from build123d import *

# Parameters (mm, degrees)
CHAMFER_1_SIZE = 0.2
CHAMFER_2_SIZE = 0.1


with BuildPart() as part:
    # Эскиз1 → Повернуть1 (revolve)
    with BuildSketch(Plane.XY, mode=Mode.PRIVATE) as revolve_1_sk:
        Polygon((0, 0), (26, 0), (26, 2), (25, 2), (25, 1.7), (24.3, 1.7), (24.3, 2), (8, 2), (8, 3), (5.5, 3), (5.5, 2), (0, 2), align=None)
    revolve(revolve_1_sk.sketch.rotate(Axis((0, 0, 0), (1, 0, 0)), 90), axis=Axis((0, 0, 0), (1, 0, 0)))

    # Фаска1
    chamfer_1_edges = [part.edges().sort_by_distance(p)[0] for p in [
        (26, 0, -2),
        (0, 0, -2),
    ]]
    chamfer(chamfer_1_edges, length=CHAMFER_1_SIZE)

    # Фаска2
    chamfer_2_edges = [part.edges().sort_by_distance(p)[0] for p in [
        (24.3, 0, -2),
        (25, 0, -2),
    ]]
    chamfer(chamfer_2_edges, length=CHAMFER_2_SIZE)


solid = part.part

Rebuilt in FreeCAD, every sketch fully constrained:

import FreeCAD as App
import Part
import Sketcher

V = App.Vector


def edges_at(feature, points):
    """Names of the edges that pass closest to the given points."""
    edges = feature.Shape.Edges
    near = lambda p: min(range(len(edges)), key=lambda i: edges[i].distToShape(Part.Vertex(*p))[0])
    return sorted({f"Edge{near(p) + 1}" for p in points})


def add_polygon(sketch, points):
    """Adds a closed chain of lines whose ends are joined by coincident constraints."""
    first, n = sketch.GeometryCount, len(points)
    for a, b in zip(points, points[1:] + points[:1]):
        sketch.addGeometry(Part.LineSegment(App.Vector(*a, 0), App.Vector(*b, 0)), False)
    for i in range(n):
        sketch.addConstraint(Sketcher.Constraint("Coincident", first + i, 2, first + (i + 1) % n, 1))

doc = App.newDocument("Part")
body = doc.addObject("PartDesign::Body", "Body")

sketch1 = body.newObject("Sketcher::SketchObject", "Sketch")
sketch1.AttachmentSupport = (doc.getObject("XY_Plane"), [""])
sketch1.MapMode = "FlatFace"
add_polygon(sketch1, [(0, 0), (26, 0), (26, 2), (25, 2), (25, 1.7), (24.3, 1.7), (24.3, 2), (8, 2), (8, 3), (5.5, 3), (5.5, 2), (0, 2)])
sketch1.addConstraint(Sketcher.Constraint("Horizontal", 0))
sketch1.addConstraint(Sketcher.Constraint("Vertical", 1))
sketch1.addConstraint(Sketcher.Constraint("Horizontal", 2))
sketch1.addConstraint(Sketcher.Constraint("Vertical", 3))
sketch1.addConstraint(Sketcher.Constraint("Horizontal", 4))
sketch1.addConstraint(Sketcher.Constraint("Vertical", 5))
sketch1.addConstraint(Sketcher.Constraint("Horizontal", 6))
sketch1.addConstraint(Sketcher.Constraint("Vertical", 7))
sketch1.addConstraint(Sketcher.Constraint("Horizontal", 8))
sketch1.addConstraint(Sketcher.Constraint("Vertical", 9))
sketch1.addConstraint(Sketcher.Constraint("Horizontal", 10))
sketch1.addConstraint(Sketcher.Constraint("Vertical", 11))
sketch1.addConstraint(Sketcher.Constraint("Coincident", 11, 2, -1, 1))
sketch1.addConstraint(Sketcher.Constraint("Horizontal", 2, 2, 5, 2))
sketch1.addConstraint(Sketcher.Constraint("Horizontal", 6, 2, 9, 2))
sketch1.addConstraint(Sketcher.Constraint("Equal", 2, 7))
sketch1.addConstraint(Sketcher.Constraint("DistanceX", 0, 1, 0, 2, 26.0))
sketch1.addConstraint(Sketcher.Constraint("DistanceX", 2, 2, 2, 1, 1.0))
sketch1.addConstraint(Sketcher.Constraint("DistanceY", 1, 1, 1, 2, 2.0))
sketch1.addConstraint(Sketcher.Constraint("DistanceX", 4, 2, 4, 1, 0.7))
sketch1.addConstraint(Sketcher.Constraint("DistanceX", 6, 2, 6, 1, 16.3))
sketch1.addConstraint(Sketcher.Constraint("DistanceX", 8, 2, 8, 1, 2.5))
sketch1.addConstraint(Sketcher.Constraint("DistanceY", 3, 2, 3, 1, 0.3))
revolution = body.newObject("PartDesign::Revolution", "Revolution")
revolution.Profile = sketch1
revolution.ReferenceAxis = (sketch1, ["H_Axis"])
revolution.Angle = 360
doc.recompute()

chamfer = body.newObject("PartDesign::Chamfer", "Chamfer")
chamfer.Base = (revolution, edges_at(revolution, [(26, 0, -2), (0, 0, -2)]))
chamfer.Size = 0.2
doc.recompute()

chamfer2 = body.newObject("PartDesign::Chamfer", "Chamfer001")
chamfer2.Base = (chamfer, edges_at(chamfer, [(24.3, 0, -2), (25, 0, -2)]))
chamfer2.Size = 0.1

doc.recompute()
